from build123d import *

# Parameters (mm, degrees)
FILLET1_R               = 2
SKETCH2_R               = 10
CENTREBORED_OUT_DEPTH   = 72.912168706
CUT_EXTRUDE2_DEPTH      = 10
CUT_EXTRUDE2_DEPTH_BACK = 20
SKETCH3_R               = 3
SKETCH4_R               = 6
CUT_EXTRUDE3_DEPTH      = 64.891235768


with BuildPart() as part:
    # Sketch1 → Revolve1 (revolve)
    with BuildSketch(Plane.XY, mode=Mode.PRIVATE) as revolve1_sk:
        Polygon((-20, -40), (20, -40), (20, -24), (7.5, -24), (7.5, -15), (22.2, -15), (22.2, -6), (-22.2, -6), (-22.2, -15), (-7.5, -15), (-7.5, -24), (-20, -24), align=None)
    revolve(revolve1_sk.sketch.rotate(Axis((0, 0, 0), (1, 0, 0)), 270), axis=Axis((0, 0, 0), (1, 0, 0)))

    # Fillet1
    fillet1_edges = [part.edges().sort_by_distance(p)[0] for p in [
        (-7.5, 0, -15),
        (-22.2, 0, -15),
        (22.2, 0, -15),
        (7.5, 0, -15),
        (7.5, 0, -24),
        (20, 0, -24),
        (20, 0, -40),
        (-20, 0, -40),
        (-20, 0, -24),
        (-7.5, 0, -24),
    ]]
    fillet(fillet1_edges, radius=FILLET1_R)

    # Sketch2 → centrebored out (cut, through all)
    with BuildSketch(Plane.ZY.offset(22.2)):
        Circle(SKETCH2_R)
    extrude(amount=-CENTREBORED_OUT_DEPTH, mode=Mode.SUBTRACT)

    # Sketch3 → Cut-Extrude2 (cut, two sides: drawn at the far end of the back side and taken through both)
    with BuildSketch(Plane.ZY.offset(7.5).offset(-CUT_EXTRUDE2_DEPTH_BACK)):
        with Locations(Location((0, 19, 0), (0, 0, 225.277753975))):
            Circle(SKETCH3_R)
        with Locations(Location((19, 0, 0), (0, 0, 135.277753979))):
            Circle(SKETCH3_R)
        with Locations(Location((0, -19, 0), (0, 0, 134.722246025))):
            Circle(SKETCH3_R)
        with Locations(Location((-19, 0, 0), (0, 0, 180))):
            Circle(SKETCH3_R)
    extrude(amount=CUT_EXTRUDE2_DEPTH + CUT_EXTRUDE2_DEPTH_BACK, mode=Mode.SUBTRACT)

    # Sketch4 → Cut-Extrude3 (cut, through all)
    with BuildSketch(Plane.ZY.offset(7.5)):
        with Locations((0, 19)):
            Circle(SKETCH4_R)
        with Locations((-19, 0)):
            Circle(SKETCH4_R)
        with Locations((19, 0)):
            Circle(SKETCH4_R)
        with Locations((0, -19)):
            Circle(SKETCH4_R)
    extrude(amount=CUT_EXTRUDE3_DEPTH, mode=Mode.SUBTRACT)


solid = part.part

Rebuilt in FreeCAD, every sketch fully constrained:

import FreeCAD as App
import Part
import Sketcher
Q = App.Units.Quantity


def edges_at(feature, points):
    """Names of the edges that pass closest to the given points."""
    edges = feature.Shape.Edges
    near = lambda p: min(range(len(edges)), key=lambda i: edges[i].distToShape(Part.Vertex(*p))[0])
    return sorted({f"Edge{near(p) + 1}" for p in points})


def add_polygon(sketch, points):
    """Adds a closed chain of lines whose ends are joined by coincident constraints."""
    first, n = sketch.GeometryCount, len(points)
    for a, b in zip(points, points[1:] + points[:1]):
        sketch.addGeometry(Part.LineSegment(App.Vector(*a, 0), App.Vector(*b, 0)), False)
    for i in range(n):
        sketch.addConstraint(Sketcher.Constraint("Coincident", first + i, 2, first + (i + 1) % n, 1))

doc = App.newDocument("Part")
body = doc.addObject("PartDesign::Body", "Body")

# Sketch on XY plane
sketch1 = body.newObject("Sketcher::SketchObject", "Sketch")
sketch1.AttachmentSupport = (doc.getObject("XY_Plane"), [""])
sketch1.MapMode = "FlatFace"
add_polygon(sketch1, [(-20, -40), (20, -40), (20, -24), (8, -24), (8, -15), (22, -15), (22, -6), (-22, -6), (-22, -15), (-8, -15), (-8, -24), (-20, -24)])  # lines 0-11
sketch1.addConstraint([
    Sketcher.Constraint("Horizontal", 0),
    Sketcher.Constraint("Vertical", 1),
    Sketcher.Constraint("Horizontal", 2),
    Sketcher.Constraint("Vertical", 3),
    Sketcher.Constraint("Horizontal", 4),
    Sketcher.Constraint("Vertical", 5),
    Sketcher.Constraint("Horizontal", 6),
    Sketcher.Constraint("Vertical", 7),
    Sketcher.Constraint("Horizontal", 8),
    Sketcher.Constraint("Vertical", 9),
    Sketcher.Constraint("Horizontal", 10),
    Sketcher.Constraint("Vertical", 11),
    Sketcher.Constraint("Symmetric", 4, 2, 7, 2, -2),
    Sketcher.Constraint("Symmetric", 2, 2, 9, 2, -2),
    Sketcher.Constraint("Equal", 2, 10),
    Sketcher.Constraint("Equal", 3, 5),
    Sketcher.Constraint("DistanceX", 0, 1, 0, 2, Q("40 mm")),
    Sketcher.Constraint("DistanceY", 1, 1, 1, 2, Q("16 mm")),
    Sketcher.Constraint("DistanceY", 3, 1, 3, 2, Q("9 mm")),
    Sketcher.Constraint("DistanceX", 2, 2, 2, 1, Q("12.5 mm")),
    Sketcher.Constraint("DistanceX", 4, 1, 4, 2, Q("14.7 mm")),
    Sketcher.Constraint("DistanceY", 0, 2, -1, 1, Q("40 mm")),
])
revolution = body.newObject("PartDesign::Revolution", "Revolution")
revolution.Profile = sketch1
revolution.ReferenceAxis = (sketch1, ["H_Axis"])
revolution.Angle = 360
doc.recompute()

fillet = body.newObject("PartDesign::Fillet", "Fillet")
fillet.Base = (revolution, edges_at(revolution, [
    (-7.5, 0, -15),
    (-22.2, 0, -15),
    (22.2, 0, -15),
    (7.5, 0, -15),
    (7.5, 0, -24),
    (20, 0, -24),
    (20, 0, -40),
    (-20, 0, -40),
    (-20, 0, -24),
    (-7.5, 0, -24),
]))
fillet.Radius = 2

# Sketch on YZ plane
sketch2 = body.newObject("Sketcher::SketchObject", "Sketch001")
sketch2.AttachmentSupport = (doc.getObject("YZ_Plane"), [""])
sketch2.MapMode = "FlatFace"
sketch2.AttachmentOffset = App.Placement(App.Vector(0, 0, -22.2), App.Rotation())
sketch2.addGeometry(Part.Circle(App.Vector(0, 0, 0), App.Vector(0, 0, 1), 10), False)
sketch2.addConstraint([
    Sketcher.Constraint("Coincident", 0, 3, -1, 1),
    Sketcher.Constraint("Diameter", 0, Q("20 mm")),
])
pocket1 = body.newObject("PartDesign::Pocket", "Pocket")
pocket1.Profile = sketch2
pocket1.Type = "ThroughAll"
pocket1.Reversed = True

# Sketch on YZ plane
sketch3 = body.newObject("Sketcher::SketchObject", "Sketch002")
sketch3.AttachmentSupport = (doc.getObject("YZ_Plane"), [""])
sketch3.MapMode = "FlatFace"
sketch3.AttachmentOffset = App.Placement(App.Vector(0, 0, -7.5), App.Rotation())
sketch3.addGeometry([
    Part.Circle(App.Vector(19, 0, 0), App.Vector(0, 0, 1), 3),
    Part.Circle(App.Vector(0, 19, 0), App.Vector(0, 0, 1), 3),
    Part.Circle(App.Vector(-19, 0, 0), App.Vector(0, 0, 1), 3),
    Part.Circle(App.Vector(0, -19, 0), App.Vector(0, 0, 1), 3),
], False)
sketch3.addConstraint([
    Sketcher.Constraint("Equal", 0, 1),
    Sketcher.Constraint("Equal", 1, 2),
    Sketcher.Constraint("Equal", 2, 3),
    Sketcher.Constraint("Symmetric", 0, 3, 2, 3, -1, 1),
    Sketcher.Constraint("Symmetric", 1, 3, 3, 3, -1, 1),
    Sketcher.Constraint("PointOnObject", 0, 3, -1),
    Sketcher.Constraint("PointOnObject", 1, 3, -2),
    Sketcher.Constraint("Diameter", 0, Q("6 mm")),
    Sketcher.Constraint("DistanceX", -1, 1, 0, 3, Q("19 mm")),
    Sketcher.Constraint("DistanceY", -1, 1, 1, 3, Q("19 mm")),
])
pocket2 = body.newObject("PartDesign::Pocket", "Pocket001")
pocket2.Profile = sketch3
pocket2.Type = "ThroughAll"
pocket2.Midplane = True

# Sketch on YZ plane
sketch4 = body.newObject("Sketcher::SketchObject", "Sketch003")
sketch4.AttachmentSupport = (doc.getObject("YZ_Plane"), [""])
sketch4.MapMode = "FlatFace"
sketch4.AttachmentOffset = App.Placement(App.Vector(0, 0, -7.5), App.Rotation())
sketch4.addGeometry([
    Part.Circle(App.Vector(19, 0, 0), App.Vector(0, 0, 1), 6),
    Part.Circle(App.Vector(0, -19, 0), App.Vector(0, 0, 1), 6),
    Part.Circle(App.Vector(0, 19, 0), App.Vector(0, 0, 1), 6),
    Part.Circle(App.Vector(-19, 0, 0), App.Vector(0, 0, 1), 6),
], False)
sketch4.addConstraint([
    Sketcher.Constraint("Equal", 0, 1),
    Sketcher.Constraint("Equal", 1, 2),
    Sketcher.Constraint("Equal", 2, 3),
    Sketcher.Constraint("Symmetric", 1, 3, 2, 3, -1, 1),
    Sketcher.Constraint("Symmetric", 0, 3, 3, 3, -1, 1),
    Sketcher.Constraint("PointOnObject", 0, 3, -1),
    Sketcher.Constraint("PointOnObject", 1, 3, -2),
    Sketcher.Constraint("Diameter", 0, Q("12 mm")),
    Sketcher.Constraint("DistanceX", -1, 1, 0, 3, Q("19 mm")),
    Sketcher.Constraint("DistanceY", 1, 3, -1, 1, Q("19 mm")),
])
pocket3 = body.newObject("PartDesign::Pocket", "Pocket002")
pocket3.Profile = sketch4
pocket3.Type = "ThroughAll"

doc.recompute()
